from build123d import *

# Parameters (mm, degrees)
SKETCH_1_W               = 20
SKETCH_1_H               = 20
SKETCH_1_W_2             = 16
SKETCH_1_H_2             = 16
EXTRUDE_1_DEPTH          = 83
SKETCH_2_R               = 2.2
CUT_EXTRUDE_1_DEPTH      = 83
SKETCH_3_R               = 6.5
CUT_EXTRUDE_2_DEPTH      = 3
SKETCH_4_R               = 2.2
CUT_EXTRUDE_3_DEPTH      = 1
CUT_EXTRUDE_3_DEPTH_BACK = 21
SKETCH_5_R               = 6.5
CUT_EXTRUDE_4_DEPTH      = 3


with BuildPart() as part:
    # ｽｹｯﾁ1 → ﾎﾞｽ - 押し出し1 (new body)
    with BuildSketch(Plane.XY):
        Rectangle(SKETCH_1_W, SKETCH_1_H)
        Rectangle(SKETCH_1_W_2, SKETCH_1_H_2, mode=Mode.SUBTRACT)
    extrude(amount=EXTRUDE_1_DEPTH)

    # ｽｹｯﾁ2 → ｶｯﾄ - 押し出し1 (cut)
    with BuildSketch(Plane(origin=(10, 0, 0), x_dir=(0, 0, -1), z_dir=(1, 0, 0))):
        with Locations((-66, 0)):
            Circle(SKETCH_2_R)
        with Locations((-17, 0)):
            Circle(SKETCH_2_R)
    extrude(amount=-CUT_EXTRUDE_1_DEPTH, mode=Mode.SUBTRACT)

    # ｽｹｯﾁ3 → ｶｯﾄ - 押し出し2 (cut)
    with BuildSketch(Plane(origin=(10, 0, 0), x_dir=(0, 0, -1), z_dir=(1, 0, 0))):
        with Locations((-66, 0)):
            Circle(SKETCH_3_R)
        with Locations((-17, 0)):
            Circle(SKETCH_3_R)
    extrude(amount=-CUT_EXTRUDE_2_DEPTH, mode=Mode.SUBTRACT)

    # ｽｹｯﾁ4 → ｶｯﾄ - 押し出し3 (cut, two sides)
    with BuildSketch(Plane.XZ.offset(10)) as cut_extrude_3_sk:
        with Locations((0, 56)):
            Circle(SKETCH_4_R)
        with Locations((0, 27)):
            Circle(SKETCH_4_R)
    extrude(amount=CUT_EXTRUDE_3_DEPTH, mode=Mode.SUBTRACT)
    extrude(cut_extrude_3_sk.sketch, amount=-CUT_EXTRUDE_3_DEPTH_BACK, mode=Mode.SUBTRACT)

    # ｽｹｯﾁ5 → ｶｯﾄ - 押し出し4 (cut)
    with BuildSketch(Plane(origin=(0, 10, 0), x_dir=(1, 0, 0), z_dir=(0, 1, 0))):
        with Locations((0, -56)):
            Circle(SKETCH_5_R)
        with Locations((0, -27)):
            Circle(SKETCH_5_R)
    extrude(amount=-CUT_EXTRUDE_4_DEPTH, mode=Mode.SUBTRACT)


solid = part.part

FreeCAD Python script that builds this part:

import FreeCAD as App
import Part
import Sketcher

V = App.Vector

doc = App.newDocument("Part")
body = doc.addObject("PartDesign::Body", "Body")

# Sketch on XY plane
sketch1 = body.newObject("Sketcher::SketchObject", "Sketch")
sketch1.AttachmentSupport = (doc.getObject("XY_Plane"), [""])
sketch1.MapMode = "FlatFace"
sketch1.addGeometry(Part.LineSegment(V(-10, 10, 0), V(-10, -10, 0)), False)
sketch1.addGeometry(Part.LineSegment(V(-10, -10, 0), V(10, -10, 0)), False)
sketch1.addGeometry(Part.LineSegment(V(10, -10, 0), V(10, 10, 0)), False)
sketch1.addGeometry(Part.LineSegment(V(10, 10, 0), V(-10, 10, 0)), False)
sketch1.addGeometry(Part.LineSegment(V(8, -8, 0), V(-8, -8, 0)), False)
sketch1.addGeometry(Part.LineSegment(V(-8, -8, 0), V(-8, 8, 0)), False)
sketch1.addGeometry(Part.LineSegment(V(-8, 8, 0), V(8, 8, 0)), False)
sketch1.addGeometry(Part.LineSegment(V(8, 8, 0), V(8, -8, 0)), False)
sketch1.addConstraint(Sketcher.Constraint("Coincident", 0, 2, 1, 1))
sketch1.addConstraint(Sketcher.Constraint("Coincident", 1, 2, 2, 1))
sketch1.addConstraint(Sketcher.Constraint("Coincident", 2, 2, 3, 1))
sketch1.addConstraint(Sketcher.Constraint("Coincident", 3, 2, 0, 1))
sketch1.addConstraint(Sketcher.Constraint("Coincident", 4, 2, 5, 1))
sketch1.addConstraint(Sketcher.Constraint("Coincident", 5, 2, 6, 1))
sketch1.addConstraint(Sketcher.Constraint("Coincident", 6, 2, 7, 1))
sketch1.addConstraint(Sketcher.Constraint("Coincident", 7, 2, 4, 1))
sketch1.addConstraint(Sketcher.Constraint("Vertical", 0))
sketch1.addConstraint(Sketcher.Constraint("Horizontal", 1))
sketch1.addConstraint(Sketcher.Constraint("Vertical", 2))
sketch1.addConstraint(Sketcher.Constraint("Horizontal", 3))
sketch1.addConstraint(Sketcher.Constraint("Horizontal", 4))
sketch1.addConstraint(Sketcher.Constraint("Vertical", 5))
sketch1.addConstraint(Sketcher.Constraint("Horizontal", 6))
sketch1.addConstraint(Sketcher.Constraint("Vertical", 7))
sketch1.addConstraint(Sketcher.Constraint("Symmetric", 0, 2, 2, 2, -1, 1))
sketch1.addConstraint(Sketcher.Constraint("Symmetric", 4, 2, 6, 2, -1, 1))
sketch1.addConstraint(Sketcher.Constraint("Equal", 3, 0))
sketch1.addConstraint(Sketcher.Constraint("Equal", 6, 5))
sketch1.addConstraint(Sketcher.Constraint("DistanceX", 1, 1, 1, 2, 20.0))
sketch1.addConstraint(Sketcher.Constraint("DistanceX", 4, 2, 4, 1, 16.0))
pad1 = body.newObject("PartDesign::Pad", "Pad")
pad1.Profile = sketch1
pad1.Length = 83

# Sketch on YZ plane
sketch2 = body.newObject("Sketcher::SketchObject", "Sketch001")
sketch2.AttachmentSupport = (doc.getObject("YZ_Plane"), [""])
sketch2.MapMode = "FlatFace"
sketch2.AttachmentOffset = App.Placement(V(0, 0, 10), App.Rotation())
sketch2.addGeometry(Part.Circle(V(0, 66, 0), V(0, 0, 1), 2.2), False)
sketch2.addGeometry(Part.Circle(V(0, 17, 0), V(0, 0, 1), 2.2), False)
sketch2.addConstraint(Sketcher.Constraint("Equal", 0, 1))
sketch2.addConstraint(Sketcher.Constraint("PointOnObject", 0, 3, -2))
sketch2.addConstraint(Sketcher.Constraint("PointOnObject", 1, 3, -2))
sketch2.addConstraint(Sketcher.Constraint("Diameter", 0, 4.4))
sketch2.addConstraint(Sketcher.Constraint("DistanceY", -1, 1, 0, 3, 66.0))
sketch2.addConstraint(Sketcher.Constraint("DistanceY", -1, 1, 1, 3, 17.0))
pocket1 = body.newObject("PartDesign::Pocket", "Pocket")
pocket1.Profile = sketch2
pocket1.Length = 83

# Sketch on YZ plane
sketch3 = body.newObject("Sketcher::SketchObject", "Sketch002")
sketch3.AttachmentSupport = (doc.getObject("YZ_Plane"), [""])
sketch3.MapMode = "FlatFace"
sketch3.AttachmentOffset = App.Placement(V(0, 0, 10), App.Rotation())
sketch3.addGeometry(Part.Circle(V(0, 66, 0), V(0, 0, 1), 6), False)
sketch3.addGeometry(Part.Circle(V(0, 17, 0), V(0, 0, 1), 6), False)
sketch3.addConstraint(Sketcher.Constraint("Equal", 0, 1))
sketch3.addConstraint(Sketcher.Constraint("PointOnObject", 0, 3, -2))
sketch3.addConstraint(Sketcher.Constraint("PointOnObject", 1, 3, -2))
sketch3.addConstraint(Sketcher.Constraint("Diameter", 0, 13.0))
sketch3.addConstraint(Sketcher.Constraint("DistanceY", -1, 1, 0, 3, 66.0))
sketch3.addConstraint(Sketcher.Constraint("DistanceY", -1, 1, 1, 3, 17.0))
pocket2 = body.newObject("PartDesign::Pocket", "Pocket001")
pocket2.Profile = sketch3
pocket2.Length = 3

# Sketch on XZ plane
sketch4 = body.newObject("Sketcher::SketchObject", "Sketch003")
sketch4.AttachmentSupport = (doc.getObject("XZ_Plane"), [""])
sketch4.MapMode = "FlatFace"
sketch4.AttachmentOffset = App.Placement(V(0, 0, 10), App.Rotation())
sketch4.addGeometry(Part.Circle(V(0, 56, 0), V(0, 0, 1), 2.2), False)
sketch4.addGeometry(Part.Circle(V(0, 27, 0), V(0, 0, 1), 2.2), False)
sketch4.addConstraint(Sketcher.Constraint("Equal", 0, 1))
sketch4.addConstraint(Sketcher.Constraint("PointOnObject", 0, 3, -2))
sketch4.addConstraint(Sketcher.Constraint("PointOnObject", 1, 3, -2))
sketch4.addConstraint(Sketcher.Constraint("Diameter", 0, 4.4))
sketch4.addConstraint(Sketcher.Constraint("DistanceY", -1, 1, 0, 3, 56.0))
sketch4.addConstraint(Sketcher.Constraint("DistanceY", -1, 1, 1, 3, 27.0))
pocket3 = body.newObject("PartDesign::Pocket", "Pocket002")
pocket3.Profile = sketch4
pocket3.Type = "ThroughAll"
pocket3.Midplane = True

# Sketch on XZ plane
sketch5 = body.newObject("Sketcher::SketchObject", "Sketch004")
sketch5.AttachmentSupport = (doc.getObject("XZ_Plane"), [""])
sketch5.MapMode = "FlatFace"
sketch5.AttachmentOffset = App.Placement(V(0, 0, -10), App.Rotation())
sketch5.addGeometry(Part.Circle(V(0, 56, 0), V(0, 0, 1), 6), False)
sketch5.addGeometry(Part.Circle(V(0, 27, 0), V(0, 0, 1), 6), False)
sketch5.addConstraint(Sketcher.Constraint("Equal", 0, 1))
sketch5.addConstraint(Sketcher.Constraint("PointOnObject", 0, 3, -2))
sketch5.addConstraint(Sketcher.Constraint("PointOnObject", 1, 3, -2))
sketch5.addConstraint(Sketcher.Constraint("Diameter", 0, 13.0))
sketch5.addConstraint(Sketcher.Constraint("DistanceY", -1, 1, 0, 3, 56.0))
sketch5.addConstraint(Sketcher.Constraint("DistanceY", -1, 1, 1, 3, 27.0))
pocket4 = body.newObject("PartDesign::Pocket", "Pocket003")
pocket4.Profile = sketch5
pocket4.Length = 3
pocket4.Reversed = True

doc.recompute()
